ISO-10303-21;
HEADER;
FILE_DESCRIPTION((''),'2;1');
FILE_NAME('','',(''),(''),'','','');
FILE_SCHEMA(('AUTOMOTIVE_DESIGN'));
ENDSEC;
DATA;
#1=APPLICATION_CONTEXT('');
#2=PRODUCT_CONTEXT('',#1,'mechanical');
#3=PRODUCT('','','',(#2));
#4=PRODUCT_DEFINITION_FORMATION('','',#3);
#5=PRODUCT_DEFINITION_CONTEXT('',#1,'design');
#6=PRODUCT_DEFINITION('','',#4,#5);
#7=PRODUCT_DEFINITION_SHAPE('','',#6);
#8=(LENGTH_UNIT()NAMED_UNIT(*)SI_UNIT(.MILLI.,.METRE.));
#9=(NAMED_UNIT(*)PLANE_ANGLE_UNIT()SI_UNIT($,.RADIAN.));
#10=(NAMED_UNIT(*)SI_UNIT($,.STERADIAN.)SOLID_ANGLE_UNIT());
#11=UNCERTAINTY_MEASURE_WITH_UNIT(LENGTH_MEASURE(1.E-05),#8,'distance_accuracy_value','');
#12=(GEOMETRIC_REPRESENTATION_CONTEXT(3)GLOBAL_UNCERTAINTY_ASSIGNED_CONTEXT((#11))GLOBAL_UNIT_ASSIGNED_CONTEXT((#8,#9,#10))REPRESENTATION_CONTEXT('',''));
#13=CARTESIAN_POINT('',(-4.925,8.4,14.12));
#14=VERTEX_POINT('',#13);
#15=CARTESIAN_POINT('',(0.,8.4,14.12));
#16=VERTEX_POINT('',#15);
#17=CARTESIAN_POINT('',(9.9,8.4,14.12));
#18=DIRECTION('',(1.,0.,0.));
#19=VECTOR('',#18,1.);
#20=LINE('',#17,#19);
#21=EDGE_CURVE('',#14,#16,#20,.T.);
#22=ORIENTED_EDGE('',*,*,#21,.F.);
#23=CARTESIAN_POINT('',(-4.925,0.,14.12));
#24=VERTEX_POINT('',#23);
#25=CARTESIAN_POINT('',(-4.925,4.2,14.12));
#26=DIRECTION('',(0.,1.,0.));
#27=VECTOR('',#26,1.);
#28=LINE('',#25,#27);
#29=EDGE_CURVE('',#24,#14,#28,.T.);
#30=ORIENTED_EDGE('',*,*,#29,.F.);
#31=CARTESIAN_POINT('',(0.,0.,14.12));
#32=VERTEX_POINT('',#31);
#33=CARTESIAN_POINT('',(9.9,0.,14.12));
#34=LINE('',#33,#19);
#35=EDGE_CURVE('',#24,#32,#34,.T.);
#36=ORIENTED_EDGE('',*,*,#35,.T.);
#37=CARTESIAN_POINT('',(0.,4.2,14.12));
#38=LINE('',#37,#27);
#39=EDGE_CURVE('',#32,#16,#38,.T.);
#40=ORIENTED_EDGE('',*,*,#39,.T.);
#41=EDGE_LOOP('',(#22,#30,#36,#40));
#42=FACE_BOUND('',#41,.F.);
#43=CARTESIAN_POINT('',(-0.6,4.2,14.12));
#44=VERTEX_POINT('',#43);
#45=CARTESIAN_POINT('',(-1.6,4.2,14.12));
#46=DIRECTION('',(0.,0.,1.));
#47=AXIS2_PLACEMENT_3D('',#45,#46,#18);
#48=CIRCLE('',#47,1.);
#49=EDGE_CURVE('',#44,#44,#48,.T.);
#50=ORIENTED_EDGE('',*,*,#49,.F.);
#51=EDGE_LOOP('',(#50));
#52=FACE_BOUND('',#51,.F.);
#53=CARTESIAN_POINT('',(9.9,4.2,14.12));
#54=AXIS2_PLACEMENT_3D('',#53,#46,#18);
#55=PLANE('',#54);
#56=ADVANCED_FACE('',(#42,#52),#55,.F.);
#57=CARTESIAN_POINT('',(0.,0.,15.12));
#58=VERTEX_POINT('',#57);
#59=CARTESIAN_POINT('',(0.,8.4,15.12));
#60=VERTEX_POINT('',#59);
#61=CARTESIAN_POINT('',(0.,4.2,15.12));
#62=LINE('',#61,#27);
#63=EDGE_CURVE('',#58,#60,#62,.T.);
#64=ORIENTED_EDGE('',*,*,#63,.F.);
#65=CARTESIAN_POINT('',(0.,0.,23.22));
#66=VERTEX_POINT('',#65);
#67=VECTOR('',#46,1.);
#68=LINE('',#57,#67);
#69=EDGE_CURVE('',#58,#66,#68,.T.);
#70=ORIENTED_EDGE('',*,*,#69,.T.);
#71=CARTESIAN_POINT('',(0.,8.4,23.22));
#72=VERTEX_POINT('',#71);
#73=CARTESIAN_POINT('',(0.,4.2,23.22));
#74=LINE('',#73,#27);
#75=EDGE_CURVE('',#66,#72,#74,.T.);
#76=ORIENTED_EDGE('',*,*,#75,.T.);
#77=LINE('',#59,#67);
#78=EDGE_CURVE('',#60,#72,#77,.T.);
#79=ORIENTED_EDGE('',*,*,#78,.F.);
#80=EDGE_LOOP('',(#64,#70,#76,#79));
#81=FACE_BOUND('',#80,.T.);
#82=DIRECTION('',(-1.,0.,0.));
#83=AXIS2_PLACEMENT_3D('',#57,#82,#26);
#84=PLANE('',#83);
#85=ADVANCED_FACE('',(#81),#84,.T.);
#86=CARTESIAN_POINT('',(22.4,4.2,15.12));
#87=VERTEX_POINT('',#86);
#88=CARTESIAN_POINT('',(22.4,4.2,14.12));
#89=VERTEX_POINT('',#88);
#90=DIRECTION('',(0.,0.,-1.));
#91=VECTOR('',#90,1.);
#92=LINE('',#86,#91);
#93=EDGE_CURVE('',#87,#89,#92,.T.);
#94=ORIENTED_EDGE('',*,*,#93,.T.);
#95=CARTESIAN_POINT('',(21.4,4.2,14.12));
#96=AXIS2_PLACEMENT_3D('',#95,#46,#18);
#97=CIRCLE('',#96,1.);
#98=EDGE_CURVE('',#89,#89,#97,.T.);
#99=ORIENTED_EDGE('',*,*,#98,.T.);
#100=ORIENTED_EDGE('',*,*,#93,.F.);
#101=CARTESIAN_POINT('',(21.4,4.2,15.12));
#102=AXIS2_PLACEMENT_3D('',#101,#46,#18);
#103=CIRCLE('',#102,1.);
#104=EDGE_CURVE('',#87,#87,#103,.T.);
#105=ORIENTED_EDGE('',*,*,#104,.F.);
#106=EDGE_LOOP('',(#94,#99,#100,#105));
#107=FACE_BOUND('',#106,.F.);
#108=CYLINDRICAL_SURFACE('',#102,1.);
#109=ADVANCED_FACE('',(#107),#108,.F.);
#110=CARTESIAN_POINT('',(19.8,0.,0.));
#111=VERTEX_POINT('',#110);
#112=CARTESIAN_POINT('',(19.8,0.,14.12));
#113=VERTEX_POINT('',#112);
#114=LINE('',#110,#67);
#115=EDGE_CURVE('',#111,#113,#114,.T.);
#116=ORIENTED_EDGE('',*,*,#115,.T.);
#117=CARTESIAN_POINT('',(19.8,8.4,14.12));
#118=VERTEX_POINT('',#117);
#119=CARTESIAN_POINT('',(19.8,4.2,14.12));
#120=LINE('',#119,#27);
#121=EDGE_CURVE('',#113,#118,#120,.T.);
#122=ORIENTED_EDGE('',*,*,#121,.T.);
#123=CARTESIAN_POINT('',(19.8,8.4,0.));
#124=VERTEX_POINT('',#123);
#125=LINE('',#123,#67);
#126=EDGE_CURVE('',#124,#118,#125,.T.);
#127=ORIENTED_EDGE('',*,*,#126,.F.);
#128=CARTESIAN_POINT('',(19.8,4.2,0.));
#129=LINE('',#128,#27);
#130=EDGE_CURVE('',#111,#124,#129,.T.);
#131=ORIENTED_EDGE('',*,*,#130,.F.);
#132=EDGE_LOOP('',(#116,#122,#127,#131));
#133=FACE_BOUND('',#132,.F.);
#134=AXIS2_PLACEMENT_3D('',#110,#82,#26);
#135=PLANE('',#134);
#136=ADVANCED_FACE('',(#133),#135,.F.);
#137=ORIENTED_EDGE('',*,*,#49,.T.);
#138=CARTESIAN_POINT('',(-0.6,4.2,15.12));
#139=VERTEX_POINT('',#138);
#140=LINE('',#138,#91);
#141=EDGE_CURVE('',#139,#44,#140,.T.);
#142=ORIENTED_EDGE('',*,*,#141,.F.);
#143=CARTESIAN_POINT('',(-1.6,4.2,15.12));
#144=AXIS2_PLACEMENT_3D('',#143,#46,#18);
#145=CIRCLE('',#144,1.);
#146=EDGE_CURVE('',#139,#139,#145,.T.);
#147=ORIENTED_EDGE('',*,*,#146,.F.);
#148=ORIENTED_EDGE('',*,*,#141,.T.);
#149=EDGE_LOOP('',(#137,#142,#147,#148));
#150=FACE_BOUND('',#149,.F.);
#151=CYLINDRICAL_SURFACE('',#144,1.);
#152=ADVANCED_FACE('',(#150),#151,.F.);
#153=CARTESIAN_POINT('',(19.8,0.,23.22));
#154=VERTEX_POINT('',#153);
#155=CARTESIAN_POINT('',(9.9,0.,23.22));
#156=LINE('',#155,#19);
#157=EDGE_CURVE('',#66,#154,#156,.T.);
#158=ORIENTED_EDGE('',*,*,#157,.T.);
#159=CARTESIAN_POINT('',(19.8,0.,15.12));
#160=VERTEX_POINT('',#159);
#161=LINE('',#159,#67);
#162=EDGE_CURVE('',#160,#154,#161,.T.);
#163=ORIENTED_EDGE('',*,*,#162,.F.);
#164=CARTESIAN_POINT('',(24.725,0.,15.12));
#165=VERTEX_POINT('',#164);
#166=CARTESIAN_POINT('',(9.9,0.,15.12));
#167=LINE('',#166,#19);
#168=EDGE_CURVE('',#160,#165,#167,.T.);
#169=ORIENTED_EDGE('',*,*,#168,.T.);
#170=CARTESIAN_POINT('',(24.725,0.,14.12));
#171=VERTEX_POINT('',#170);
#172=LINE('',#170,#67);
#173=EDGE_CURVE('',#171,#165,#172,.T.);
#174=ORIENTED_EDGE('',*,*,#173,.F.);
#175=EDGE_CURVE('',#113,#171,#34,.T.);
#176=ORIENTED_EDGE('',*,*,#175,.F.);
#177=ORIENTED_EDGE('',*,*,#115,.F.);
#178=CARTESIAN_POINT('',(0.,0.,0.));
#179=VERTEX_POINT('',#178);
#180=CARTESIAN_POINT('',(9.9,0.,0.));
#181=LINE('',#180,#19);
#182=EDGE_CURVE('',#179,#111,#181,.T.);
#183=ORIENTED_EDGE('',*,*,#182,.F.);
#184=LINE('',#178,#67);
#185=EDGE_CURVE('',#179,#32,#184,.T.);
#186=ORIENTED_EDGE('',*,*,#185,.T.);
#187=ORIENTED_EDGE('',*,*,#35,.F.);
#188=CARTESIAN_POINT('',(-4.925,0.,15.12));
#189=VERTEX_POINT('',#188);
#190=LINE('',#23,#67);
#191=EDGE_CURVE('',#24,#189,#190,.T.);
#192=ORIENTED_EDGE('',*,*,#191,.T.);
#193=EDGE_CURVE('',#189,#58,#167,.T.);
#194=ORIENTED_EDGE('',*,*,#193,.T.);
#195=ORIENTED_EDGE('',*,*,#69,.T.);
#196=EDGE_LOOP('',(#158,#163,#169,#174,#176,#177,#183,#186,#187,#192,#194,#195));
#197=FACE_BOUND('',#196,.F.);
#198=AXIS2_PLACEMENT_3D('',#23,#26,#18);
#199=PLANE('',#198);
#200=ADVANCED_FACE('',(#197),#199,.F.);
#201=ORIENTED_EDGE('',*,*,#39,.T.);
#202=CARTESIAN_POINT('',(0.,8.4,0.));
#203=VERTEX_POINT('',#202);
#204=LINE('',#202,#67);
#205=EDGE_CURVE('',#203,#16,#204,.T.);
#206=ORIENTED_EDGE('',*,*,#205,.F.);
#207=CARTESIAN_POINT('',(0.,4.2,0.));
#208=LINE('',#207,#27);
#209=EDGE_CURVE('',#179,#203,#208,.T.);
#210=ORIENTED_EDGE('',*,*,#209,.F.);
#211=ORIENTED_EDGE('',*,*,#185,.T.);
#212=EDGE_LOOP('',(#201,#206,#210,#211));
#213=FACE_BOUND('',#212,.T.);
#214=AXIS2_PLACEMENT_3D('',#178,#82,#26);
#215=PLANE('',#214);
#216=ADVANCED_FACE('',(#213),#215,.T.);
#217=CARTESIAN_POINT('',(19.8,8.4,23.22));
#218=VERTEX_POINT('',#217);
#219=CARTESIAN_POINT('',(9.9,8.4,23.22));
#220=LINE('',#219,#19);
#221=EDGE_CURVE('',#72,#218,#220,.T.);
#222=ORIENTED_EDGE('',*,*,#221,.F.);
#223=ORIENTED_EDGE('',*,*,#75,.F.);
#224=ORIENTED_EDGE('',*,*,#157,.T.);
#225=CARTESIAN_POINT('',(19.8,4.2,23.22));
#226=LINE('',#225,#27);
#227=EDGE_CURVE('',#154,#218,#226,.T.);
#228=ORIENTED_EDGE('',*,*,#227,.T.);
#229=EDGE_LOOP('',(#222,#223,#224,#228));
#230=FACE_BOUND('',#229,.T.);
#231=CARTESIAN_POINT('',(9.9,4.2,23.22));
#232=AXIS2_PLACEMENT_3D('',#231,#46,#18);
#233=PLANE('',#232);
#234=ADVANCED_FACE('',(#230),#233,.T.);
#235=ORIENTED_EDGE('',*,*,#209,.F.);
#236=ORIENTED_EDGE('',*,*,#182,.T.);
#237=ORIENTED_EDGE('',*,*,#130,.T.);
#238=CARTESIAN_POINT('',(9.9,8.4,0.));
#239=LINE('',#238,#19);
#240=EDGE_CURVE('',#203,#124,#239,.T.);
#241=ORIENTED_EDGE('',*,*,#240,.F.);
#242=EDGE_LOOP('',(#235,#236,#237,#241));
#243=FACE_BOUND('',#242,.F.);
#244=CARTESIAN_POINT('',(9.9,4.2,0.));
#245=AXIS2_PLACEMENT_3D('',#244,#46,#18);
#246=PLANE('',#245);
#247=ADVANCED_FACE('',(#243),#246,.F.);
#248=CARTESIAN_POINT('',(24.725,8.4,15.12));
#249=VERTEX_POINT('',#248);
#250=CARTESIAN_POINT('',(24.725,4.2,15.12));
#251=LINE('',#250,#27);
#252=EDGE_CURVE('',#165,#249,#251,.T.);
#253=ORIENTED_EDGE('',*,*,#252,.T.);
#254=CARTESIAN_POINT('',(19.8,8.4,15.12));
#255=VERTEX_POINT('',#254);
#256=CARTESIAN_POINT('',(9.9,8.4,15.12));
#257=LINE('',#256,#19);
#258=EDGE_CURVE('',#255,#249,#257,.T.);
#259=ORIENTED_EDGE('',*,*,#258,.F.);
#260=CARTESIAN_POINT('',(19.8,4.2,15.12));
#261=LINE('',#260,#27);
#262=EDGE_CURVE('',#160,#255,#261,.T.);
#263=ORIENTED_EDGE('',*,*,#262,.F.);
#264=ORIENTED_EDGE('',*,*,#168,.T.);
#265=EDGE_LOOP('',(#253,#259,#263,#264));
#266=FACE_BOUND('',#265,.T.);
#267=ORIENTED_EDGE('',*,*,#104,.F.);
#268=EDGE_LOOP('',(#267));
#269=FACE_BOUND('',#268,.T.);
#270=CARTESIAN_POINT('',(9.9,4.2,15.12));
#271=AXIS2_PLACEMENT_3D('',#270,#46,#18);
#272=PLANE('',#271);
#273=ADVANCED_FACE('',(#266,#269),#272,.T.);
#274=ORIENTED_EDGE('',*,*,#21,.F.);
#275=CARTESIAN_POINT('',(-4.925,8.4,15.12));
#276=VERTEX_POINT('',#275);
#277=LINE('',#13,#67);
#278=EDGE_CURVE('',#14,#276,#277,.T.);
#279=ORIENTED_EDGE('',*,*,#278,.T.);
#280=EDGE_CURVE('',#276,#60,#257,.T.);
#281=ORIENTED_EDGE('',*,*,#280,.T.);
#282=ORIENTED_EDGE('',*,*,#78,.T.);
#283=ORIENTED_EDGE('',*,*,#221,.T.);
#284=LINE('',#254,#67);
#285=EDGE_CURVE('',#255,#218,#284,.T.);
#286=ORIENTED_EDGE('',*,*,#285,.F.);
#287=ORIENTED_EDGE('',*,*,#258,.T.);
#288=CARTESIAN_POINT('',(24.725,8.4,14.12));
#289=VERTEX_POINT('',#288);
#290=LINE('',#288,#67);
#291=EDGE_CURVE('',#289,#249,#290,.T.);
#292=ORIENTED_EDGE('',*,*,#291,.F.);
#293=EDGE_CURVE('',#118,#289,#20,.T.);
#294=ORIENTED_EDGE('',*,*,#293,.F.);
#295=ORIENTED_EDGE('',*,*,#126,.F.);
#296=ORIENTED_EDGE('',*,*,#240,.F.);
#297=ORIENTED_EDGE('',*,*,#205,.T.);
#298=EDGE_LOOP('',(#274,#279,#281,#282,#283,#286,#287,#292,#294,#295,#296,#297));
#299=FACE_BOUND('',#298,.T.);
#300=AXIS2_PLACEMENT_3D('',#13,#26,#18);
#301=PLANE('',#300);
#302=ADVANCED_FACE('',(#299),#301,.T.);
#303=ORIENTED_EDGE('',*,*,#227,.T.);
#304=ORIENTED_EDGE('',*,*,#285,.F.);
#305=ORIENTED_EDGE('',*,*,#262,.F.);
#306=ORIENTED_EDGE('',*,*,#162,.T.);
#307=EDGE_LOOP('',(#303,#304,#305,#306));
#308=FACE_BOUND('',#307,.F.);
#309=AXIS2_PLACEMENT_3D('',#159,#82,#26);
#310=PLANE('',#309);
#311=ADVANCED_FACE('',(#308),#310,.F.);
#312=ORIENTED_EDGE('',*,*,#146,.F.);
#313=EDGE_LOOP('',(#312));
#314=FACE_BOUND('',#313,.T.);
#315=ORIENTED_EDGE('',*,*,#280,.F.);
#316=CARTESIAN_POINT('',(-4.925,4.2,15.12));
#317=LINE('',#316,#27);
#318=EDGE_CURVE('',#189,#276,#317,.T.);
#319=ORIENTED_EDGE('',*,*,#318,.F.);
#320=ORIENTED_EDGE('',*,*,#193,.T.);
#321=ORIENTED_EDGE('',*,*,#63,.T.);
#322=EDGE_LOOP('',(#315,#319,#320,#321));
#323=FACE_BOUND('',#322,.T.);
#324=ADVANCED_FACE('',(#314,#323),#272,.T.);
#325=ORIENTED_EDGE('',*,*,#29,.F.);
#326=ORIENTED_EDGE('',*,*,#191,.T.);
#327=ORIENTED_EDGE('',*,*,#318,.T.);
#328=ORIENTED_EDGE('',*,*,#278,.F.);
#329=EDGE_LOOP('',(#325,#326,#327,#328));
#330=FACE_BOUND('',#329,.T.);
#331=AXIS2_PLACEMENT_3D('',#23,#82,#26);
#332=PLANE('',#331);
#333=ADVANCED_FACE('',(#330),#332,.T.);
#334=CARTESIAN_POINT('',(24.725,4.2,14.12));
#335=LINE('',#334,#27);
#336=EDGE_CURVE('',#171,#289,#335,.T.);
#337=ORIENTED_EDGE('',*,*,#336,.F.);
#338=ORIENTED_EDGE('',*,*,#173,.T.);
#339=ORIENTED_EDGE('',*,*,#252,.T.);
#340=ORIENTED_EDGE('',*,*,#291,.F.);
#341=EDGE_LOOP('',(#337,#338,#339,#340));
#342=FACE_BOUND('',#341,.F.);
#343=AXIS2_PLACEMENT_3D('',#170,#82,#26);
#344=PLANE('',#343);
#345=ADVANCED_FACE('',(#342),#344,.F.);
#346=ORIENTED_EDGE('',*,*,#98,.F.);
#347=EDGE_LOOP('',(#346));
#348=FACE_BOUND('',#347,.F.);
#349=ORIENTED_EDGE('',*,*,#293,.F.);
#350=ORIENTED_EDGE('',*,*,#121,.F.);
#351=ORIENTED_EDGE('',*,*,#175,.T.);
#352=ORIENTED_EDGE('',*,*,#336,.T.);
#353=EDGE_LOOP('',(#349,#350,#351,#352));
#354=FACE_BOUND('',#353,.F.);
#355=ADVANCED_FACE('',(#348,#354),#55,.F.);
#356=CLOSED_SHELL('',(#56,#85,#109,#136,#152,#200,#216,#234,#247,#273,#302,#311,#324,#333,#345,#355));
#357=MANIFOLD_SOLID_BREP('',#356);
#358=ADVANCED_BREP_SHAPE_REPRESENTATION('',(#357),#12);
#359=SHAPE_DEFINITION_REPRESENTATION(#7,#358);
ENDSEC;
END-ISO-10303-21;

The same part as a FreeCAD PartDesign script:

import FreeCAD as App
import Part
import Sketcher
from FreeCAD import Vector


def add_polygon(sketch, points):
    """Adds a closed chain of lines whose ends are joined by coincident constraints."""
    first, n = sketch.GeometryCount, len(points)
    for a, b in zip(points, points[1:] + points[:1]):
        sketch.addGeometry(Part.LineSegment(App.Vector(*a, 0), App.Vector(*b, 0)), False)
    for i in range(n):
        sketch.addConstraint(Sketcher.Constraint("Coincident", first + i, 2, first + (i + 1) % n, 1))

doc = App.newDocument("Part")
body = doc.addObject("PartDesign::Body", "Body")

sketch1 = body.newObject("Sketcher::SketchObject", "Sketch")
sketch1.AttachmentSupport = (doc.getObject("XY_Plane"), [""])
sketch1.MapMode = "FlatFace"
add_polygon(sketch1, [(0, 8.4), (0, 0), (19.8, 0), (19.8, 8.4)])
sketch1.addConstraint(Sketcher.Constraint("Vertical", 0))
sketch1.addConstraint(Sketcher.Constraint("Horizontal", 1))
sketch1.addConstraint(Sketcher.Constraint("Vertical", 2))
sketch1.addConstraint(Sketcher.Constraint("Horizontal", 3))
sketch1.addConstraint(Sketcher.Constraint("Coincident", 0, 2, -1, 1))
sketch1.addConstraint(Sketcher.Constraint("DistanceX", 1, 1, 1, 2, 19.8))
sketch1.addConstraint(Sketcher.Constraint("DistanceY", 0, 2, 0, 1, 8.4))
pad1 = body.newObject("PartDesign::Pad", "Pad")
pad1.Profile = sketch1
pad1.Length = 14.12

sketch2 = body.newObject("Sketcher::SketchObject", "Sketch001")
sketch2.AttachmentSupport = (doc.getObject("XY_Plane"), [""])
sketch2.MapMode = "FlatFace"
sketch2.AttachmentOffset = App.Placement(Vector(0, 0, 14.12), App.Rotation())
add_polygon(sketch2, [(-4.925, 8.4), (-4.925, 0), (24.725, 0), (24.725, 8.4)])
sketch2.addConstraint(Sketcher.Constraint("Vertical", 0))
sketch2.addConstraint(Sketcher.Constraint("Horizontal", 1))
sketch2.addConstraint(Sketcher.Constraint("Vertical", 2))
sketch2.addConstraint(Sketcher.Constraint("Horizontal", 3))
sketch2.addConstraint(Sketcher.Constraint("PointOnObject", 0, 2, -1))
sketch2.addConstraint(Sketcher.Constraint("DistanceY", 0, 2, 0, 1, 8.4))
sketch2.addConstraint(Sketcher.Constraint("DistanceX", 1, 1, 1, 2, 29.65))
sketch2.addConstraint(Sketcher.Constraint("DistanceX", 0, 2, -1, 1, 4.925))
pad2 = body.newObject("PartDesign::Pad", "Pad001")
pad2.Profile = sketch2
pad2.Length = 1

sketch3 = body.newObject("Sketcher::SketchObject", "Sketch002")
sketch3.AttachmentSupport = (doc.getObject("XY_Plane"), [""])
sketch3.MapMode = "FlatFace"
sketch3.AttachmentOffset = App.Placement(Vector(0, 0, 15.12), App.Rotation())
sketch3.addGeometry(Part.Circle(Vector(-1.6, 4.2, 0), Vector(0, 0, 1), 1), False)
sketch3.addGeometry(Part.Circle(Vector(21.4, 4.2, 0), Vector(0, 0, 1), 1), False)
sketch3.addConstraint(Sketcher.Constraint("Equal", 0, 1))
sketch3.addConstraint(Sketcher.Constraint("Horizontal", 0, 3, 1, 3))
sketch3.addConstraint(Sketcher.Constraint("Diameter", 0, 2.0))
sketch3.addConstraint(Sketcher.Constraint("DistanceX", 0, 3, 1, 3, 23.0))
sketch3.addConstraint(Sketcher.Constraint("DistanceX", 0, 3, -1, 1, 1.6))
sketch3.addConstraint(Sketcher.Constraint("DistanceY", -1, 1, 0, 3, 4.2))
pocket1 = body.newObject("PartDesign::Pocket", "Pocket")
pocket1.Profile = sketch3
pocket1.Type = "ThroughAll"

sketch4 = body.newObject("Sketcher::SketchObject", "Sketch003")
sketch4.AttachmentSupport = (doc.getObject("XY_Plane"), [""])
sketch4.MapMode = "FlatFace"
sketch4.AttachmentOffset = App.Placement(Vector(0, 0, 15.12), App.Rotation())
add_polygon(sketch4, [(0, 8.4), (0, 0), (19.8, 0), (19.8, 8.4)])
sketch4.addConstraint(Sketcher.Constraint("Vertical", 0))
sketch4.addConstraint(Sketcher.Constraint("Horizontal", 1))
sketch4.addConstraint(Sketcher.Constraint("Vertical", 2))
sketch4.addConstraint(Sketcher.Constraint("Horizontal", 3))
sketch4.addConstraint(Sketcher.Constraint("Coincident", 0, 2, -1, 1))
sketch4.addConstraint(Sketcher.Constraint("DistanceX", 1, 1, 1, 2, 19.8))
sketch4.addConstraint(Sketcher.Constraint("DistanceY", 0, 2, 0, 1, 8.4))
pad3 = body.newObject("PartDesign::Pad", "Pad002")
pad3.Profile = sketch4
pad3.Length = 8.1

doc.recompute()
